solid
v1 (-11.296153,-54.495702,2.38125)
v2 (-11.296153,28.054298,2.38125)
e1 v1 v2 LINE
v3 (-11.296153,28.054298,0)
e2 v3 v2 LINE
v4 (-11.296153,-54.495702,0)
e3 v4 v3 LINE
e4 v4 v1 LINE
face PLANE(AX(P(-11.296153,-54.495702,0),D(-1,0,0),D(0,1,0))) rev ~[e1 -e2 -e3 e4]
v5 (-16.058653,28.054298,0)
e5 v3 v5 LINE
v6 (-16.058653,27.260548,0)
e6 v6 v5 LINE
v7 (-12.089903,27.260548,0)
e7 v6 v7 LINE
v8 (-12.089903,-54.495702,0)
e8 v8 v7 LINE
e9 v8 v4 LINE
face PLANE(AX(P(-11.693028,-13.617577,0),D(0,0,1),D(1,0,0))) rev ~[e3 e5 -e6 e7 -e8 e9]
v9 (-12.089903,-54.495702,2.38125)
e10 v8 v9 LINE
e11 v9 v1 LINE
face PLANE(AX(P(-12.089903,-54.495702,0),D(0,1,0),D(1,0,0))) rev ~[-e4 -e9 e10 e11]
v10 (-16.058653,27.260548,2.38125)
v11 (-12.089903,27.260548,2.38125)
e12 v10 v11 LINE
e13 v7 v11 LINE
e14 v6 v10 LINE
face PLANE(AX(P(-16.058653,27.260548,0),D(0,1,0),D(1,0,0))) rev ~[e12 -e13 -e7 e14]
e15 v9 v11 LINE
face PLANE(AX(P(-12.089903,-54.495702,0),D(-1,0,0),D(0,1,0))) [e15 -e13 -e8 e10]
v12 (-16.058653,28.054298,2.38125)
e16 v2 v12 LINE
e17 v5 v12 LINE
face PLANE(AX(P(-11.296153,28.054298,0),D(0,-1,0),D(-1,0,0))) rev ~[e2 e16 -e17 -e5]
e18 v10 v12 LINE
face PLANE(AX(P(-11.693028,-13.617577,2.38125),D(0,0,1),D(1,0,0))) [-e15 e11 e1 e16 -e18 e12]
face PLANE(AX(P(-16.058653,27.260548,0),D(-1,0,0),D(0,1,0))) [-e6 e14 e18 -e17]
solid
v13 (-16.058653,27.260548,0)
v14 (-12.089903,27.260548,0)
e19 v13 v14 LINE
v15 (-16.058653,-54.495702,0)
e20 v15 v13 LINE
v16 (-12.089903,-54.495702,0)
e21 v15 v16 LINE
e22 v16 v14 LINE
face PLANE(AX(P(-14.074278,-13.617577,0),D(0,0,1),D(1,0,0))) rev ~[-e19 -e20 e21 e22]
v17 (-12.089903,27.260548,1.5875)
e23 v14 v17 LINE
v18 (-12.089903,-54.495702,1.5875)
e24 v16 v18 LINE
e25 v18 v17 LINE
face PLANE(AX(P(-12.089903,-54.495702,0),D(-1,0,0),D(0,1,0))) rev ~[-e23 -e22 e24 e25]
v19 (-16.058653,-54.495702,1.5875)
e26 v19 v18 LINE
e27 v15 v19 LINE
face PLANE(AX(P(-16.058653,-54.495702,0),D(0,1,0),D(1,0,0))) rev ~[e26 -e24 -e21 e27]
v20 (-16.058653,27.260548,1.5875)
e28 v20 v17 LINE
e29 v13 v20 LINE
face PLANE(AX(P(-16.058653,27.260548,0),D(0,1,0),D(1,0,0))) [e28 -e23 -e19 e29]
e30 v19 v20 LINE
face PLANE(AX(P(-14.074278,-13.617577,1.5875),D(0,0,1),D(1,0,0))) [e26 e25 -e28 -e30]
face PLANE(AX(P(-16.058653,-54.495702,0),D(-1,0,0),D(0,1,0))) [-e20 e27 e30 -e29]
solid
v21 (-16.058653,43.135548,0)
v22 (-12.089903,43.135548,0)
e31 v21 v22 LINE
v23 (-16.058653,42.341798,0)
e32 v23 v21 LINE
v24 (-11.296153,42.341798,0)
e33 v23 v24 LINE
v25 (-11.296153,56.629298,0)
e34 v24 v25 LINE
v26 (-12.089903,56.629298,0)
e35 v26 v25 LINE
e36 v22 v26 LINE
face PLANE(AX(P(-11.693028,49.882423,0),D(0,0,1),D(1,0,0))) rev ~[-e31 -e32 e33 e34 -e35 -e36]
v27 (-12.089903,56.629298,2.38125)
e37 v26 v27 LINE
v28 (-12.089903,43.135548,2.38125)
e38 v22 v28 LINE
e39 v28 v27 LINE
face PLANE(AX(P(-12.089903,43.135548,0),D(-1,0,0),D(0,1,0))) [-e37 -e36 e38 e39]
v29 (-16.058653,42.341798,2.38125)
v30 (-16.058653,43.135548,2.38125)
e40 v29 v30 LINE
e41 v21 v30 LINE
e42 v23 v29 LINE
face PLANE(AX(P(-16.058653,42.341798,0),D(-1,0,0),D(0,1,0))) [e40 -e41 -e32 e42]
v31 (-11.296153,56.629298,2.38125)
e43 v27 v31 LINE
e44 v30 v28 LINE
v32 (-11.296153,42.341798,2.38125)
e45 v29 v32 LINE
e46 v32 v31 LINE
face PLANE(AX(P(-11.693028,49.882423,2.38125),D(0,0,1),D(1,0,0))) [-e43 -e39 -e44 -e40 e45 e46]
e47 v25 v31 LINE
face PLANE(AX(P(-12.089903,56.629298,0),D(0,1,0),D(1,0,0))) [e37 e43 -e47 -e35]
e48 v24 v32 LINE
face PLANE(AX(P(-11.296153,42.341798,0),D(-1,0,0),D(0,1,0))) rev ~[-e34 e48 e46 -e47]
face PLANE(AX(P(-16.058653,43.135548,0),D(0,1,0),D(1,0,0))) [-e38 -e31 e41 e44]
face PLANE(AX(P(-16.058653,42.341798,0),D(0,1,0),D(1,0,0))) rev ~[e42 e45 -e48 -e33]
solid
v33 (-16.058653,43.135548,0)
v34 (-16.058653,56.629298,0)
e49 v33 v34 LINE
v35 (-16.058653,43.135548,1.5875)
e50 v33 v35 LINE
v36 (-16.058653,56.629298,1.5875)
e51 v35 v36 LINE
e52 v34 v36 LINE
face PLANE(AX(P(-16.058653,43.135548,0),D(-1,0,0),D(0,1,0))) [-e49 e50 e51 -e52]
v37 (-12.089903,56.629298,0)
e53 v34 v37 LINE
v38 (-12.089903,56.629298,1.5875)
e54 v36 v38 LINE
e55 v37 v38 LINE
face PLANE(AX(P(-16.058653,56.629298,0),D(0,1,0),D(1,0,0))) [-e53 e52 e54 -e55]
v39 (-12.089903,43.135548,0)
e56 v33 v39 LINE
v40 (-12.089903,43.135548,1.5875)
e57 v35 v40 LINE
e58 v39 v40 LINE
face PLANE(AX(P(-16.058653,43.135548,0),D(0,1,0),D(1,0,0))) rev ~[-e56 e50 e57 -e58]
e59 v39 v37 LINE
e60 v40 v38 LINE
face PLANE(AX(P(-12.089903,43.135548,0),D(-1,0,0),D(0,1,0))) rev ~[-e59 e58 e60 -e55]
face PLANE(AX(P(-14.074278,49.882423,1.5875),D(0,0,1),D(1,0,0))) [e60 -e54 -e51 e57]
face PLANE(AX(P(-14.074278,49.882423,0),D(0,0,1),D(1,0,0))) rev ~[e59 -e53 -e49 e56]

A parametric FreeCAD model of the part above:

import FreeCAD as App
import Part
import Sketcher

V = App.Vector
Q = App.Units.Quantity

doc = App.newDocument("Part")
params = doc.addObject("Spreadsheet::Sheet", "Params")
for row, (alias, value) in enumerate([
    ("sketch1_width", "0.15625 in"),
    ("sketch1_width2", "0.1875 in"),
    ("sketch1_height", "0.53125 in"),
    ("pad1_length", "0.09375 in"),
    ("sketch2_height", "3.25 in"),
    ("sketch2_width", "0.03125 in"),
    ("sketch2_width2", "0.1875 in"),
    ("pad2_length", "0.09375 in"),
    ("sketch3_width", "0.15625 in"),
    ("sketch3_height", "0.53125 in"),
    ("pad3_length", "0.0625 in"),
    ("sketch4_width", "0.15625 in"),
    ("sketch4_height", "3.21875 in"),
    ("pad4_length", "0.0625 in"),
], start=1):
    params.set(f"A{row}", alias)
    params.set(f"B{row}", "=" + value)
    params.setAlias(f"B{row}", alias)

body = doc.addObject("PartDesign::Body", "Body")

# Sketch on XY plane
sketch1 = body.newObject("Sketcher::SketchObject", "Sketch")
sketch1.AttachmentSupport = (doc.getObject("XY_Plane"), [""])
sketch1.MapMode = "FlatFace"
sketch1.addGeometry(Part.LineSegment(V(-12.1, 56.6, 0), V(-12.1, 43.1, 0)), False)
sketch1.addGeometry(Part.LineSegment(V(-12.1, 43.1, 0), V(-16.1, 43.1, 0)), False)
sketch1.addGeometry(Part.LineSegment(V(-16.1, 43.1, 0), V(-16.1, 42.3, 0)), False)
sketch1.addGeometry(Part.LineSegment(V(-16.1, 42.3, 0), V(-11.3, 42.3, 0)), False)
sketch1.addGeometry(Part.LineSegment(V(-11.3, 42.3, 0), V(-11.3, 56.6, 0)), False)
sketch1.addGeometry(Part.LineSegment(V(-11.3, 56.6, 0), V(-12.1, 56.6, 0)), False)
sketch1.addConstraint(Sketcher.Constraint("Coincident", 0, 2, 1, 1))
sketch1.addConstraint(Sketcher.Constraint("Coincident", 1, 2, 2, 1))
sketch1.addConstraint(Sketcher.Constraint("Coincident", 2, 2, 3, 1))
sketch1.addConstraint(Sketcher.Constraint("Coincident", 3, 2, 4, 1))
sketch1.addConstraint(Sketcher.Constraint("Coincident", 4, 2, 5, 1))
sketch1.addConstraint(Sketcher.Constraint("Coincident", 5, 2, 0, 1))
sketch1.addConstraint(Sketcher.Constraint("Vertical", 0))
sketch1.addConstraint(Sketcher.Constraint("Horizontal", 1))
sketch1.addConstraint(Sketcher.Constraint("Vertical", 2))
sketch1.addConstraint(Sketcher.Constraint("Horizontal", 3))
sketch1.addConstraint(Sketcher.Constraint("Vertical", 4))
sketch1.addConstraint(Sketcher.Constraint("Horizontal", 5))
sketch1.addConstraint(Sketcher.Constraint("Equal", 5, 2))
sketch1.addConstraint(Sketcher.Constraint("DistanceX", 1, 2, 1, 1, Q("0.15625 in")))
sketch1.addConstraint(Sketcher.Constraint("DistanceX", 3, 1, 3, 2, Q("0.1875 in")))
sketch1.addConstraint(Sketcher.Constraint("DistanceY", 0, 2, 0, 1, Q("0.53125 in")))
sketch1.addConstraint(Sketcher.Constraint("DistanceY", -1, 1, 2, 2, Q("1.6669999 in")))
sketch1.addConstraint(Sketcher.Constraint("DistanceX", 0, 2, -1, 1, 12.089903))
sketch1.setExpression("Constraints[13]", "Params.sketch1_width")
sketch1.setExpression("Constraints[14]", "Params.sketch1_width2")
sketch1.setExpression("Constraints[15]", "Params.sketch1_height")
pad1 = body.newObject("PartDesign::Pad", "Pad")
pad1.Profile = sketch1
pad1.setExpression("Length", "Params.pad1_length")
body2 = doc.addObject("PartDesign::Body", "Body001")

# Sketch on XY plane
sketch2 = body2.newObject("Sketcher::SketchObject", "Sketch001")
sketch2.AttachmentSupport = (doc.getObject("XY_Plane001"), [""])
sketch2.MapMode = "FlatFace"
sketch2.addGeometry(Part.LineSegment(V(-12.1, 27.3, 0), V(-12.1, -54.5, 0)), False)
sketch2.addGeometry(Part.LineSegment(V(-12.1, -54.5, 0), V(-11.3, -54.5, 0)), False)
sketch2.addGeometry(Part.LineSegment(V(-11.3, -54.5, 0), V(-11.3, 28.1, 0)), False)
sketch2.addGeometry(Part.LineSegment(V(-11.3, 28.1, 0), V(-16.1, 28.1, 0)), False)
sketch2.addGeometry(Part.LineSegment(V(-16.1, 28.1, 0), V(-16.1, 27.3, 0)), False)
sketch2.addGeometry(Part.LineSegment(V(-16.1, 27.3, 0), V(-12.1, 27.3, 0)), False)
sketch2.addConstraint(Sketcher.Constraint("Coincident", 0, 2, 1, 1))
sketch2.addConstraint(Sketcher.Constraint("Coincident", 1, 2, 2, 1))
sketch2.addConstraint(Sketcher.Constraint("Coincident", 2, 2, 3, 1))
sketch2.addConstraint(Sketcher.Constraint("Coincident", 3, 2, 4, 1))
sketch2.addConstraint(Sketcher.Constraint("Coincident", 4, 2, 5, 1))
sketch2.addConstraint(Sketcher.Constraint("Coincident", 5, 2, 0, 1))
sketch2.addConstraint(Sketcher.Constraint("Vertical", 0))
sketch2.addConstraint(Sketcher.Constraint("Horizontal", 1))
sketch2.addConstraint(Sketcher.Constraint("Vertical", 2))
sketch2.addConstraint(Sketcher.Constraint("Horizontal", 3))
sketch2.addConstraint(Sketcher.Constraint("Vertical", 4))
sketch2.addConstraint(Sketcher.Constraint("Horizontal", 5))
sketch2.addConstraint(Sketcher.Constraint("Equal", 1, 4))
sketch2.addConstraint(Sketcher.Constraint("DistanceY", 2, 1, 2, 2, Q("3.25 in")))
sketch2.addConstraint(Sketcher.Constraint("DistanceX", 1, 1, 1, 2, Q("0.03125 in")))
sketch2.addConstraint(Sketcher.Constraint("DistanceX", 3, 2, 3, 1, Q("0.1875 in")))
sketch2.addConstraint(Sketcher.Constraint("DistanceY", 0, 2, -1, 1, Q("2.1455001 in")))
sketch2.addConstraint(Sketcher.Constraint("DistanceX", 0, 2, -1, 1, 12.089903))
sketch2.setExpression("Constraints[13]", "Params.sketch2_height")
sketch2.setExpression("Constraints[14]", "Params.sketch2_width")
sketch2.setExpression("Constraints[15]", "Params.sketch2_width2")
pad2 = body2.newObject("PartDesign::Pad", "Pad001")
pad2.Profile = sketch2
pad2.setExpression("Length", "Params.pad2_length")
body3 = doc.addObject("PartDesign::Body", "Body002")

# Sketch on XY plane
sketch3 = body3.newObject("Sketcher::SketchObject", "Sketch002")
sketch3.AttachmentSupport = (doc.getObject("XY_Plane002"), [""])
sketch3.MapMode = "FlatFace"
sketch3.addGeometry(Part.LineSegment(V(-16.1, 56.6, 0), V(-16.1, 43.1, 0)), False)
sketch3.addGeometry(Part.LineSegment(V(-16.1, 43.1, 0), V(-12.1, 43.1, 0)), False)
sketch3.addGeometry(Part.LineSegment(V(-12.1, 43.1, 0), V(-12.1, 56.6, 0)), False)
sketch3.addGeometry(Part.LineSegment(V(-12.1, 56.6, 0), V(-16.1, 56.6, 0)), False)
sketch3.addConstraint(Sketcher.Constraint("Coincident", 0, 2, 1, 1))
sketch3.addConstraint(Sketcher.Constraint("Coincident", 1, 2, 2, 1))
sketch3.addConstraint(Sketcher.Constraint("Coincident", 2, 2, 3, 1))
sketch3.addConstraint(Sketcher.Constraint("Coincident", 3, 2, 0, 1))
sketch3.addConstraint(Sketcher.Constraint("Vertical", 0))
sketch3.addConstraint(Sketcher.Constraint("Horizontal", 1))
sketch3.addConstraint(Sketcher.Constraint("Vertical", 2))
sketch3.addConstraint(Sketcher.Constraint("Horizontal", 3))
sketch3.addConstraint(Sketcher.Constraint("DistanceX", 1, 1, 1, 2, Q("0.15625 in")))
sketch3.addConstraint(Sketcher.Constraint("DistanceY", 0, 2, 0, 1, Q("0.53125 in")))
sketch3.addConstraint(Sketcher.Constraint("DistanceY", -1, 1, 2, 2, Q("2.2294999 in")))
sketch3.addConstraint(Sketcher.Constraint("DistanceX", 0, 2, -1, 1, 16.058653))
sketch3.setExpression("Constraints[8]", "Params.sketch3_width")
sketch3.setExpression("Constraints[9]", "Params.sketch3_height")
pad3 = body3.newObject("PartDesign::Pad", "Pad002")
pad3.Profile = sketch3
pad3.setExpression("Length", "Params.pad3_length")
body4 = doc.addObject("PartDesign::Body", "Body003")

# Sketch on XY plane
sketch4 = body4.newObject("Sketcher::SketchObject", "Sketch003")
sketch4.AttachmentSupport = (doc.getObject("XY_Plane003"), [""])
sketch4.MapMode = "FlatFace"
sketch4.addGeometry(Part.LineSegment(V(-16.1, 27.3, 0), V(-16.1, -54.5, 0)), False)
sketch4.addGeometry(Part.LineSegment(V(-16.1, -54.5, 0), V(-12.1, -54.5, 0)), False)
sketch4.addGeometry(Part.LineSegment(V(-12.1, -54.5, 0), V(-12.1, 27.3, 0)), False)
sketch4.addGeometry(Part.LineSegment(V(-12.1, 27.3, 0), V(-16.1, 27.3, 0)), False)
sketch4.addConstraint(Sketcher.Constraint("Coincident", 0, 2, 1, 1))
sketch4.addConstraint(Sketcher.Constraint("Coincident", 1, 2, 2, 1))
sketch4.addConstraint(Sketcher.Constraint("Coincident", 2, 2, 3, 1))
sketch4.addConstraint(Sketcher.Constraint("Coincident", 3, 2, 0, 1))
sketch4.addConstraint(Sketcher.Constraint("Vertical", 0))
sketch4.addConstraint(Sketcher.Constraint("Horizontal", 1))
sketch4.addConstraint(Sketcher.Constraint("Vertical", 2))
sketch4.addConstraint(Sketcher.Constraint("Horizontal", 3))
sketch4.addConstraint(Sketcher.Constraint("DistanceX", 1, 1, 1, 2, Q("0.15625 in")))
sketch4.addConstraint(Sketcher.Constraint("DistanceY", 0, 2, 0, 1, Q("3.21875 in")))
sketch4.addConstraint(Sketcher.Constraint("DistanceY", 0, 2, -1, 1, Q("2.1455001 in")))
sketch4.addConstraint(Sketcher.Constraint("DistanceX", 0, 2, -1, 1, 16.058653))
sketch4.setExpression("Constraints[8]", "Params.sketch4_width")
sketch4.setExpression("Constraints[9]", "Params.sketch4_height")
pad4 = body4.newObject("PartDesign::Pad", "Pad003")
pad4.Profile = sketch4
pad4.setExpression("Length", "Params.pad4_length")

doc.recompute()
